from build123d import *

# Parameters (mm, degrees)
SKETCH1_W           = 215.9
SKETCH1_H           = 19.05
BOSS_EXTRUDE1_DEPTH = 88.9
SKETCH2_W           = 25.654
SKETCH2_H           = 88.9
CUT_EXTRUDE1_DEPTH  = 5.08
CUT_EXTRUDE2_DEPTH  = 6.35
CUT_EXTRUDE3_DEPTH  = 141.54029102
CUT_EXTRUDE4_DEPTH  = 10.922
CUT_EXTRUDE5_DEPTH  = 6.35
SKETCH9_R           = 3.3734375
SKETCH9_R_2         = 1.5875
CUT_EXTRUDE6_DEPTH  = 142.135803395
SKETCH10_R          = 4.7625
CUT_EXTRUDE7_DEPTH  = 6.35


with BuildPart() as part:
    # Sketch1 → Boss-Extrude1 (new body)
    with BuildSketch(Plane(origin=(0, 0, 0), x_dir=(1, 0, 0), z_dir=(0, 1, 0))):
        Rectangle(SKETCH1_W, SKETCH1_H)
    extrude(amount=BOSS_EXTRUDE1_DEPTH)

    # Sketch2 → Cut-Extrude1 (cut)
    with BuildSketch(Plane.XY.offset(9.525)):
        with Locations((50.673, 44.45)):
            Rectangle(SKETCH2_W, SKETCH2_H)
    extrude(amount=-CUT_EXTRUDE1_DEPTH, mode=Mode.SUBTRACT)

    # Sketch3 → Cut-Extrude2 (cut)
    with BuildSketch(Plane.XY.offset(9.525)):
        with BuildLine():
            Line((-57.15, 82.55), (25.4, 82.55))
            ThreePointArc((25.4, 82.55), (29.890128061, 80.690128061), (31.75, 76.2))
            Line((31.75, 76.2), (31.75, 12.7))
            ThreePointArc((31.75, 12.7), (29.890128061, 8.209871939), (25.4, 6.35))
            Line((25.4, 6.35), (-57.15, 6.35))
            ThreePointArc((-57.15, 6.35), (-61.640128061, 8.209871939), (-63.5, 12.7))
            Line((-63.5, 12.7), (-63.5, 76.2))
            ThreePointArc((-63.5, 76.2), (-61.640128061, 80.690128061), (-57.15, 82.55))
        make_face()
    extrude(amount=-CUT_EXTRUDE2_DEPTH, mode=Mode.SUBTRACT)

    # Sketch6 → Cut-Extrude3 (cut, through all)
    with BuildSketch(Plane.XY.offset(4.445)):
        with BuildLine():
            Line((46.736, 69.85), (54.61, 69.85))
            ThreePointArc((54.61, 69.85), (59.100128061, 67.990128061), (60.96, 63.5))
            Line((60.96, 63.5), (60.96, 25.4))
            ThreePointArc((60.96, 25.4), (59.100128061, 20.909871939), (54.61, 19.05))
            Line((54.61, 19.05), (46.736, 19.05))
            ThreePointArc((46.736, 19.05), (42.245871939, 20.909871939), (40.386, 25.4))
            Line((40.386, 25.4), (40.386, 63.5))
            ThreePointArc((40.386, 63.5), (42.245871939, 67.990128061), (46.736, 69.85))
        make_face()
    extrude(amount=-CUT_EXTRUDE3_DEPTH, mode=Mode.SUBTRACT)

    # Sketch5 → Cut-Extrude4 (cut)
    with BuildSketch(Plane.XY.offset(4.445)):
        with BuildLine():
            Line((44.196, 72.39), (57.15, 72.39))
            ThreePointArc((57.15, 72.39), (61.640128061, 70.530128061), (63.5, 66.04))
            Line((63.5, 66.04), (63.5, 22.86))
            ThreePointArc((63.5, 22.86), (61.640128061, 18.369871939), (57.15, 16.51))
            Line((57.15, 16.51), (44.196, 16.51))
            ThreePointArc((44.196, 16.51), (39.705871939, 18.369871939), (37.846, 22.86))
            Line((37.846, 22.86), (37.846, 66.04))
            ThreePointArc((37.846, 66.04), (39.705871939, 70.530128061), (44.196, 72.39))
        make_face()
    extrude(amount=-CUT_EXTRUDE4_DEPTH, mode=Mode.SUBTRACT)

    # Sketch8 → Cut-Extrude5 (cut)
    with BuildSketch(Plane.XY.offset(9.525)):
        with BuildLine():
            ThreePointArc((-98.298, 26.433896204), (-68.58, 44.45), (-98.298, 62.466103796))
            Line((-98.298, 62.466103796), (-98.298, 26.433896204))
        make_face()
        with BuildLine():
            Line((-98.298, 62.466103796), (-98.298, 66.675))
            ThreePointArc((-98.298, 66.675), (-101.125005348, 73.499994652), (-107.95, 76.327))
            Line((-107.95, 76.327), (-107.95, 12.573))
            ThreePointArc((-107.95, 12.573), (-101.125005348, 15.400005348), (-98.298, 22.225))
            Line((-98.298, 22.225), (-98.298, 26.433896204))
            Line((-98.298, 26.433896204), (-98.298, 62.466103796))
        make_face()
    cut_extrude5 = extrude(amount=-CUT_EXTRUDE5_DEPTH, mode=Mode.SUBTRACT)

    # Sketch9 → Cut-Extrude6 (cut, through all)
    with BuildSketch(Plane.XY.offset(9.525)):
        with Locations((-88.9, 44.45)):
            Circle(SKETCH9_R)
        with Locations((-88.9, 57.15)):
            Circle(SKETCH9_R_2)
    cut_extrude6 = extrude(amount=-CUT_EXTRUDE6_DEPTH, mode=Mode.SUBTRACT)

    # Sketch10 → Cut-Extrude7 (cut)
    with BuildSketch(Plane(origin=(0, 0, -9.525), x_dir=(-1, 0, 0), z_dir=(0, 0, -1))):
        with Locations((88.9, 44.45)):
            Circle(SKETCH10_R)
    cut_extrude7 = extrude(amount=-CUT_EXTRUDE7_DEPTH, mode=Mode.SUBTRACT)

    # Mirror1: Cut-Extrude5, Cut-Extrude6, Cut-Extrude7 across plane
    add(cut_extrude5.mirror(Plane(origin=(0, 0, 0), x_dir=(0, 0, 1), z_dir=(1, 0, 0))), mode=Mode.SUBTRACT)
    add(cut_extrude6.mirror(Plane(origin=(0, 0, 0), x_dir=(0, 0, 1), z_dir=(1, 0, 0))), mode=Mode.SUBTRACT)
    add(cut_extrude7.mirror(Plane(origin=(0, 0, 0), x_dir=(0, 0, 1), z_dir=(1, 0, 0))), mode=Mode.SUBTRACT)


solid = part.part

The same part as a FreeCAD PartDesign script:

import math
import FreeCAD as App
import Part
import Sketcher
from FreeCAD import Vector
Q = App.Units.Quantity

doc = App.newDocument("Part")
body = doc.addObject("PartDesign::Body", "Body")

sketch1 = body.newObject("Sketcher::SketchObject", "Sketch")
sketch1.AttachmentSupport = (doc.getObject("XZ_Plane"), [""])
sketch1.MapMode = "FlatFace"
sketch1.addGeometry([
    Part.LineSegment(Vector(-107.95, -9.525, 0), Vector(-107.95, 9.525, 0)),
    Part.LineSegment(Vector(-107.95, 9.525, 0), Vector(107.95, 9.525, 0)),
    Part.LineSegment(Vector(107.95, 9.525, 0), Vector(107.95, -9.525, 0)),
    Part.LineSegment(Vector(107.95, -9.525, 0), Vector(-107.95, -9.525, 0)),
], False)
sketch1.addConstraint([
    Sketcher.Constraint("Coincident", 0, 2, 1, 1),
    Sketcher.Constraint("Coincident", 1, 2, 2, 1),
    Sketcher.Constraint("Coincident", 2, 2, 3, 1),
    Sketcher.Constraint("Coincident", 3, 2, 0, 1),
    Sketcher.Constraint("Vertical", 0),
    Sketcher.Constraint("Horizontal", 1),
    Sketcher.Constraint("Vertical", 2),
    Sketcher.Constraint("Horizontal", 3),
    Sketcher.Constraint("Symmetric", 0, 2, 2, 2, -1, 1),
    Sketcher.Constraint("DistanceX", 1, 1, 1, 2, Q("8.5 in")),
    Sketcher.Constraint("DistanceY", 0, 1, 0, 2, Q("0.75 in")),
])
pad1 = body.newObject("PartDesign::Pad", "Pad")
pad1.Profile = sketch1
pad1.Length = Q("3.5 in")
pad1.Reversed = True

sketch2 = body.newObject("Sketcher::SketchObject", "Sketch001")
sketch2.AttachmentSupport = (doc.getObject("XY_Plane"), [""])
sketch2.MapMode = "FlatFace"
sketch2.AttachmentOffset = App.Placement(Vector(0, 0, 0.375 * 25.4), App.Rotation())
sketch2.addGeometry([
    Part.LineSegment(Vector(37.846, 88.9, 0), Vector(37.846, 0, 0)),
    Part.LineSegment(Vector(37.846, 0, 0), Vector(63.5, 0, 0)),
    Part.LineSegment(Vector(63.5, 0, 0), Vector(63.5, 88.9, 0)),
    Part.LineSegment(Vector(63.5, 88.9, 0), Vector(37.846, 88.9, 0)),
], False)
sketch2.addConstraint([
    Sketcher.Constraint("Coincident", 0, 2, 1, 1),
    Sketcher.Constraint("Coincident", 1, 2, 2, 1),
    Sketcher.Constraint("Coincident", 2, 2, 3, 1),
    Sketcher.Constraint("Coincident", 3, 2, 0, 1),
    Sketcher.Constraint("Vertical", 0),
    Sketcher.Constraint("Horizontal", 1),
    Sketcher.Constraint("Vertical", 2),
    Sketcher.Constraint("Horizontal", 3),
    Sketcher.Constraint("PointOnObject", 0, 2, -1),
    Sketcher.Constraint("DistanceY", 0, 2, 0, 1, Q("3.5 in")),
    Sketcher.Constraint("DistanceX", 1, 1, 1, 2, Q("1.01 in")),
    Sketcher.Constraint("DistanceX", -1, 1, 1, 2, Q("2.5 in")),
])
pocket1 = body.newObject("PartDesign::Pocket", "Pocket")
pocket1.Profile = sketch2
pocket1.Length = Q("0.2 in")

sketch3 = body.newObject("Sketcher::SketchObject", "Sketch002")
sketch3.AttachmentSupport = (doc.getObject("XY_Plane"), [""])
sketch3.MapMode = "FlatFace"
sketch3.AttachmentOffset = App.Placement(Vector(0, 0, 0.375 * 25.4), App.Rotation())
sketch3.addGeometry([
    Part.LineSegment(Vector(25.4, 82.55, 0), Vector(-57.15, 82.55, 0)),
    Part.ArcOfCircle(Part.Circle(Vector(-57.15, 76.2, 0), Vector(0, 0, 1), 6.35), math.radians(90), math.radians(180)),
    Part.LineSegment(Vector(-63.5, 76.2, 0), Vector(-63.5, 12.7, 0)),
    Part.ArcOfCircle(Part.Circle(Vector(-57.15, 12.7, 0), Vector(0, 0, 1), 6.35), math.radians(180), math.radians(270)),
    Part.LineSegment(Vector(-57.15, 6.35, 0), Vector(25.4, 6.35, 0)),
    Part.ArcOfCircle(Part.Circle(Vector(25.4, 12.7, 0), Vector(0, 0, 1), 6.35), math.radians(-90), math.radians(0)),
    Part.LineSegment(Vector(31.75, 12.7, 0), Vector(31.75, 76.2, 0)),
    Part.ArcOfCircle(Part.Circle(Vector(25.4, 76.2, 0), Vector(0, 0, 1), 6.35), math.radians(0), math.radians(90)),
], False)
sketch3.addConstraint([
    Sketcher.Constraint("Tangent", 0, 2, 1, 1),
    Sketcher.Constraint("Tangent", 1, 2, 2, 1),
    Sketcher.Constraint("Tangent", 2, 2, 3, 1),
    Sketcher.Constraint("Tangent", 3, 2, 4, 1),
    Sketcher.Constraint("Tangent", 4, 2, 5, 1),
    Sketcher.Constraint("Tangent", 5, 2, 6, 1),
    Sketcher.Constraint("Tangent", 6, 2, 7, 1),
    Sketcher.Constraint("Tangent", 7, 2, 0, 1),
    Sketcher.Constraint("Horizontal", 0),
    Sketcher.Constraint("Vertical", 2),
    Sketcher.Constraint("Horizontal", 4),
    Sketcher.Constraint("Vertical", 6),
    Sketcher.Constraint("Equal", 1, 3),
    Sketcher.Constraint("Equal", 3, 5),
    Sketcher.Constraint("Equal", 5, 7),
    Sketcher.Constraint("Radius", 1, Q("0.25 in")),
    Sketcher.Constraint("DistanceY", 2, 2, 2, 1, Q("2.5 in")),
    Sketcher.Constraint("DistanceY", -1, 1, 1, 3, Q("3 in")),
    Sketcher.Constraint("DistanceX", -1, 1, 5, 3, Q("1 in")),
    Sketcher.Constraint("DistanceX", 0, 2, 0, 1, Q("3.25 in")),
])
pocket2 = body.newObject("PartDesign::Pocket", "Pocket001")
pocket2.Profile = sketch3
pocket2.Length = Q("0.25 in")

sketch4 = body.newObject("Sketcher::SketchObject", "Sketch003")
sketch4.AttachmentSupport = (doc.getObject("XY_Plane"), [""])
sketch4.MapMode = "FlatFace"
sketch4.AttachmentOffset = App.Placement(Vector(0, 0, 0.175 * 25.4), App.Rotation())
sketch4.addGeometry([
    Part.LineSegment(Vector(54.61, 69.85, 0), Vector(46.736, 69.85, 0)),
    Part.ArcOfCircle(Part.Circle(Vector(46.736, 63.5, 0), Vector(0, 0, 1), 6.35), math.radians(90), math.radians(180)),
    Part.LineSegment(Vector(40.386, 63.5, 0), Vector(40.386, 25.4, 0)),
    Part.ArcOfCircle(Part.Circle(Vector(46.736, 25.4, 0), Vector(0, 0, 1), 6.35), math.radians(180), math.radians(270)),
    Part.LineSegment(Vector(46.736, 19.05, 0), Vector(54.61, 19.05, 0)),
    Part.ArcOfCircle(Part.Circle(Vector(54.61, 25.4, 0), Vector(0, 0, 1), 6.35), math.radians(-90), math.radians(0)),
    Part.LineSegment(Vector(60.96, 25.4, 0), Vector(60.96, 63.5, 0)),
    Part.ArcOfCircle(Part.Circle(Vector(54.61, 63.5, 0), Vector(0, 0, 1), 6.35), math.radians(0), math.radians(90)),
], False)
sketch4.addConstraint([
    Sketcher.Constraint("Tangent", 0, 2, 1, 1),
    Sketcher.Constraint("Tangent", 1, 2, 2, 1),
    Sketcher.Constraint("Tangent", 2, 2, 3, 1),
    Sketcher.Constraint("Tangent", 3, 2, 4, 1),
    Sketcher.Constraint("Tangent", 4, 2, 5, 1),
    Sketcher.Constraint("Tangent", 5, 2, 6, 1),
    Sketcher.Constraint("Tangent", 6, 2, 7, 1),
    Sketcher.Constraint("Tangent", 7, 2, 0, 1),
    Sketcher.Constraint("Horizontal", 0),
    Sketcher.Constraint("Vertical", 2),
    Sketcher.Constraint("Horizontal", 4),
    Sketcher.Constraint("Vertical", 6),
    Sketcher.Constraint("Equal", 1, 3),
    Sketcher.Constraint("Equal", 3, 5),
    Sketcher.Constraint("Equal", 5, 7),
    Sketcher.Constraint("Radius", 1, Q("0.25 in")),
    Sketcher.Constraint("DistanceY", 2, 2, 2, 1, Q("1.5 in")),
    Sketcher.Constraint("DistanceY", -1, 1, 3, 3, Q("1 in")),
    Sketcher.Constraint("DistanceX", 0, 2, 0, 1, Q("0.31 in")),
    Sketcher.Constraint("DistanceX", -1, 1, 5, 2, Q("2.4 in")),
])
pocket3 = body.newObject("PartDesign::Pocket", "Pocket002")
pocket3.Profile = sketch4
pocket3.Type = "ThroughAll"

sketch5 = body.newObject("Sketcher::SketchObject", "Sketch004")
sketch5.AttachmentSupport = (doc.getObject("XY_Plane"), [""])
sketch5.MapMode = "FlatFace"
sketch5.AttachmentOffset = App.Placement(Vector(0, 0, 0.175 * 25.4), App.Rotation())
sketch5.addGeometry([
    Part.LineSegment(Vector(57.15, 72.39, 0), Vector(44.196, 72.39, 0)),
    Part.ArcOfCircle(Part.Circle(Vector(44.196, 66.04, 0), Vector(0, 0, 1), 6.35), math.radians(90), math.radians(180)),
    Part.LineSegment(Vector(37.846, 66.04, 0), Vector(37.846, 22.86, 0)),
    Part.ArcOfCircle(Part.Circle(Vector(44.196, 22.86, 0), Vector(0, 0, 1), 6.35), math.radians(180), math.radians(270)),
    Part.LineSegment(Vector(44.196, 16.51, 0), Vector(57.15, 16.51, 0)),
    Part.ArcOfCircle(Part.Circle(Vector(57.15, 22.86, 0), Vector(0, 0, 1), 6.35), math.radians(-90), math.radians(0)),
    Part.LineSegment(Vector(63.5, 22.86, 0), Vector(63.5, 66.04, 0)),
    Part.ArcOfCircle(Part.Circle(Vector(57.15, 66.04, 0), Vector(0, 0, 1), 6.35), math.radians(0), math.radians(90)),
], False)
sketch5.addConstraint([
    Sketcher.Constraint("Tangent", 0, 2, 1, 1),
    Sketcher.Constraint("Tangent", 1, 2, 2, 1),
    Sketcher.Constraint("Tangent", 2, 2, 3, 1),
    Sketcher.Constraint("Tangent", 3, 2, 4, 1),
    Sketcher.Constraint("Tangent", 4, 2, 5, 1),
    Sketcher.Constraint("Tangent", 5, 2, 6, 1),
    Sketcher.Constraint("Tangent", 6, 2, 7, 1),
    Sketcher.Constraint("Tangent", 7, 2, 0, 1),
    Sketcher.Constraint("Horizontal", 0),
    Sketcher.Constraint("Vertical", 2),
    Sketcher.Constraint("Horizontal", 4),
    Sketcher.Constraint("Vertical", 6),
    Sketcher.Constraint("Equal", 1, 3),
    Sketcher.Constraint("Equal", 3, 5),
    Sketcher.Constraint("Equal", 5, 7),
    Sketcher.Constraint("Radius", 1, Q("0.25 in")),
    Sketcher.Constraint("DistanceY", 2, 2, 2, 1, Q("1.7 in")),
    Sketcher.Constraint("DistanceX", 0, 2, 0, 1, Q("0.51 in")),
    Sketcher.Constraint("DistanceY", -1, 1, 1, 3, Q("2.6 in")),
    Sketcher.Constraint("DistanceX", -1, 1, 5, 2, Q("2.5 in")),
])
pocket4 = body.newObject("PartDesign::Pocket", "Pocket003")
pocket4.Profile = sketch5
pocket4.Length = Q("0.43 in")

sketch6 = body.newObject("Sketcher::SketchObject", "Sketch005")
sketch6.AttachmentSupport = (doc.getObject("XY_Plane"), [""])
sketch6.MapMode = "FlatFace"
sketch6.AttachmentOffset = App.Placement(Vector(0, 0, 0.375 * 25.4), App.Rotation())
sketch6.addGeometry([
    Part.ArcOfCircle(Part.Circle(Vector(-88.9, 44.45, 0), Vector(0, 0, 1), 20.32), math.radians(-117.548546), math.radians(117.548546)),
    Part.LineSegment(Vector(-98.298, 62.466104, 0), Vector(-98.298, 66.675, 0)),
    Part.ArcOfCircle(Part.Circle(Vector(-107.95, 66.675, 0), Vector(0, 0, 1), 9.652), math.radians(0), math.radians(90)),
    Part.LineSegment(Vector(-107.95, 76.327, 0), Vector(-107.95, 12.573, 0)),
    Part.ArcOfCircle(Part.Circle(Vector(-107.95, 22.225, 0), Vector(0, 0, 1), 9.652), math.radians(-90), math.radians(0)),
    Part.LineSegment(Vector(-98.298, 22.225, 0), Vector(-98.298, 26.433896, 0)),
], False)
sketch6.addConstraint([
    Sketcher.Constraint("Coincident", 0, 2, 1, 1),
    Sketcher.Constraint("Tangent", 1, 2, 2, 1),
    Sketcher.Constraint("Coincident", 2, 2, 3, 1),
    Sketcher.Constraint("Coincident", 3, 2, 4, 1),
    Sketcher.Constraint("Tangent", 4, 2, 5, 1),
    Sketcher.Constraint("Coincident", 5, 2, 0, 1),
    Sketcher.Constraint("Vertical", 1),
    Sketcher.Constraint("Vertical", 3),
    Sketcher.Constraint("Vertical", 5),
    Sketcher.Constraint("Equal", 2, 4),
    Sketcher.Constraint("Vertical", 2, 3, 4, 3),
    Sketcher.Constraint("Vertical", 4, 3, 2, 2),
    Sketcher.Constraint("Equal", 1, 5),
    Sketcher.Constraint("Radius", 0, Q("0.8 in")),
    Sketcher.Constraint("Radius", 2, Q("0.38 in")),
    Sketcher.Constraint("DistanceY", 3, 2, 3, 1, Q("2.51 in")),
    Sketcher.Constraint("DistanceX", 0, 3, -1, 1, Q("3.5 in")),
    Sketcher.Constraint("DistanceY", -1, 1, 0, 3, Q("1.75 in")),
    Sketcher.Constraint("DistanceX", 2, 3, -1, 1, Q("4.25 in")),
])
pocket5 = body.newObject("PartDesign::Pocket", "Pocket004")
pocket5.Profile = sketch6
pocket5.Length = Q("0.25 in")

sketch7 = body.newObject("Sketcher::SketchObject", "Sketch006")
sketch7.AttachmentSupport = (doc.getObject("XY_Plane"), [""])
sketch7.MapMode = "FlatFace"
sketch7.AttachmentOffset = App.Placement(Vector(0, 0, 0.375 * 25.4), App.Rotation())
sketch7.addGeometry([
    Part.Circle(Vector(-88.9, 44.45, 0), Vector(0, 0, 1), 3.373438),
    Part.Circle(Vector(-88.9, 57.15, 0), Vector(0, 0, 1), 1.5875),
], False)
sketch7.addConstraint([
    Sketcher.Constraint("Vertical", 0, 3, 1, 3),
    Sketcher.Constraint("Diameter", 0, Q("0.265625 in")),
    Sketcher.Constraint("Diameter", 1, Q("0.125 in")),
    Sketcher.Constraint("DistanceX", 0, 3, -1, 1, Q("3.5 in")),
    Sketcher.Constraint("DistanceY", 0, 3, 1, 3, Q("0.5 in")),
    Sketcher.Constraint("DistanceY", -1, 1, 0, 3, Q("1.75 in")),
])
pocket6 = body.newObject("PartDesign::Pocket", "Pocket005")
pocket6.Profile = sketch7
pocket6.Type = "ThroughAll"

sketch8 = body.newObject("Sketcher::SketchObject", "Sketch007")
sketch8.AttachmentSupport = (doc.getObject("XY_Plane"), [""])
sketch8.MapMode = "FlatFace"
sketch8.AttachmentOffset = App.Placement(Vector(0, 0, -0.375 * 25.4), App.Rotation())
sketch8.addGeometry(Part.Circle(Vector(-88.9, 44.45, 0), Vector(0, 0, 1), 4.7625), False)
sketch8.addConstraint([
    Sketcher.Constraint("Diameter", 0, Q("0.375 in")),
    Sketcher.Constraint("DistanceX", 0, 3, -1, 1, Q("3.5 in")),
    Sketcher.Constraint("DistanceY", -1, 1, 0, 3, Q("1.75 in")),
])
pocket7 = body.newObject("PartDesign::Pocket", "Pocket006")
pocket7.Profile = sketch8
pocket7.Length = Q("0.25 in")
pocket7.Reversed = True
doc.recompute()

mirrored = body.newObject("PartDesign::Mirrored", "Mirrored")
mirrored.Originals = [pocket5, pocket6, pocket7]
mirrored.MirrorPlane = (doc.getObject("YZ_Plane"), [""])
body.Tip = mirrored

doc.recompute()
